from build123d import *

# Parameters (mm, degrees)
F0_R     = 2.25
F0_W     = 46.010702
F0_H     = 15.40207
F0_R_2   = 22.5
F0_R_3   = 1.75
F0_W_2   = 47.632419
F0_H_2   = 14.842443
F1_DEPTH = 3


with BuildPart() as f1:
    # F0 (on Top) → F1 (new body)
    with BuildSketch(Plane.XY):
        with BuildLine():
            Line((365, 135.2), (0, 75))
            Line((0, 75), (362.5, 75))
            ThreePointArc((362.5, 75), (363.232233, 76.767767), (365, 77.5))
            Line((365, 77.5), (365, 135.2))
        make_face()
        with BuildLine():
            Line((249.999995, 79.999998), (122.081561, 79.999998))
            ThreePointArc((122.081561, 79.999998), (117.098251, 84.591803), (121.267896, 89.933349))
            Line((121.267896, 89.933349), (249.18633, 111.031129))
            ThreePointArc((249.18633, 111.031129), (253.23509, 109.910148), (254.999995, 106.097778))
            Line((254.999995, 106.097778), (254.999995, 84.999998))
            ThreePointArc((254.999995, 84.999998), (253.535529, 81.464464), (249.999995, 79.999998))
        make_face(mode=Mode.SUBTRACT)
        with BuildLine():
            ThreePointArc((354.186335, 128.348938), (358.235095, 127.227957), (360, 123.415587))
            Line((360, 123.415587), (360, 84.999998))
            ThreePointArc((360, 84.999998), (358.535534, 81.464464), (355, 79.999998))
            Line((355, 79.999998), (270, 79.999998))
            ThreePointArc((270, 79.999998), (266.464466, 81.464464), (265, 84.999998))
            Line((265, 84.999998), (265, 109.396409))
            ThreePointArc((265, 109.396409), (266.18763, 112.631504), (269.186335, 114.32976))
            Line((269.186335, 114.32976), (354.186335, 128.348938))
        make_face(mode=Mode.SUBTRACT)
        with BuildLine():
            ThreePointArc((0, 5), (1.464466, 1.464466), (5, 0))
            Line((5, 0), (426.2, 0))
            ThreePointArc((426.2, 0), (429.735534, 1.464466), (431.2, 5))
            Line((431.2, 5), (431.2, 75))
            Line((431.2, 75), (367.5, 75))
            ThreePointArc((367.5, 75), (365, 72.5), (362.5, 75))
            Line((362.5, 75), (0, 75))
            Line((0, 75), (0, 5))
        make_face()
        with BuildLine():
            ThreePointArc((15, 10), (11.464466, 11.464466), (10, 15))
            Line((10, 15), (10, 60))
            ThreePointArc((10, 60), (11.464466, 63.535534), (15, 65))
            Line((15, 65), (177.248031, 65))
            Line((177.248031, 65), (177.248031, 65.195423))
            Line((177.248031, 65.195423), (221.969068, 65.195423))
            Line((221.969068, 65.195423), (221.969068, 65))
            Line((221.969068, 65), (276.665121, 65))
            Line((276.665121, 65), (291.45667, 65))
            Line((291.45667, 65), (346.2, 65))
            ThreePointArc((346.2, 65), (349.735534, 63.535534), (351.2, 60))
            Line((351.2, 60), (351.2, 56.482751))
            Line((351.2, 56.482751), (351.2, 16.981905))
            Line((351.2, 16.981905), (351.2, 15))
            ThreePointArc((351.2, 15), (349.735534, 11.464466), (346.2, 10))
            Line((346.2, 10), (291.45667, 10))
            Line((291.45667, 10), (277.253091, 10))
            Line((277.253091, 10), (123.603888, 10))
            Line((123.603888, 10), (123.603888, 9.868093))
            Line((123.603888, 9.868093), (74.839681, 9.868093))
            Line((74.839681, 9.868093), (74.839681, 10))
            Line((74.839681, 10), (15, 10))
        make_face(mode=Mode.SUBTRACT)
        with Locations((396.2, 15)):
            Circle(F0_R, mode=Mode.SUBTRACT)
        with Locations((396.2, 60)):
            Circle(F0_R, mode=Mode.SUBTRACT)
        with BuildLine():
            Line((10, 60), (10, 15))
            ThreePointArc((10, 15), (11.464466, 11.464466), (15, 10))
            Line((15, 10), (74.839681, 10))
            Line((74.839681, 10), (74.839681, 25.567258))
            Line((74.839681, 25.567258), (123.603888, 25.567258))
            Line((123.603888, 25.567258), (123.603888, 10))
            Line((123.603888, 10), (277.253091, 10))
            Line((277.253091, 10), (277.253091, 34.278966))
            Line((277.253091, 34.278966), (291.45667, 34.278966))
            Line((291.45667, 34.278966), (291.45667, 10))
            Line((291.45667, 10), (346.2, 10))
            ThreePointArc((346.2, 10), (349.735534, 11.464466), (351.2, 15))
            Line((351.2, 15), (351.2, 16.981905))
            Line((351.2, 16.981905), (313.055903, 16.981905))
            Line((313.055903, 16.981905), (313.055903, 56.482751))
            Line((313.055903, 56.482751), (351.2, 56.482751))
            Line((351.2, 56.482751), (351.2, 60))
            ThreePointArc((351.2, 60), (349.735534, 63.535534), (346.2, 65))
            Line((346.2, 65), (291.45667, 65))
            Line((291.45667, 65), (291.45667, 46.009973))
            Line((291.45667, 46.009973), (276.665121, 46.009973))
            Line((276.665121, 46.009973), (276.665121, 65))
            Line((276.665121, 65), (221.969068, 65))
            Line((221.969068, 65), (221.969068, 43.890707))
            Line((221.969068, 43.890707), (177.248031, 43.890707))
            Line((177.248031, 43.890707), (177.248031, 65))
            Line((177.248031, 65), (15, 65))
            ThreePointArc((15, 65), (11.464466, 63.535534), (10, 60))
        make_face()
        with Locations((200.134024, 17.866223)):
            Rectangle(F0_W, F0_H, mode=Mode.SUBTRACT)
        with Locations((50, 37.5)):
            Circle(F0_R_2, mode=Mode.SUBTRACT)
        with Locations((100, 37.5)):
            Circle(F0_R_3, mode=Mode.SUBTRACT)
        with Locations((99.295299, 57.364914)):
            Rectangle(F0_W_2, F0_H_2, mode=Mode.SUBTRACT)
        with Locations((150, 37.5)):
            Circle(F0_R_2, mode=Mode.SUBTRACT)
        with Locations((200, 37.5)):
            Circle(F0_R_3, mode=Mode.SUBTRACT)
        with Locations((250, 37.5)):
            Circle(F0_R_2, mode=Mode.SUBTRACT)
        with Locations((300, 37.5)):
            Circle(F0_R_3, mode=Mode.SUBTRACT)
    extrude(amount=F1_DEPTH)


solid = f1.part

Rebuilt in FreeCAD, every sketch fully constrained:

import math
import FreeCAD as App
import Part
import Sketcher

V = App.Vector

doc = App.newDocument("Part")
body = doc.addObject("PartDesign::Body", "Body")

# Sketch on XY plane
sketch1 = body.newObject("Sketcher::SketchObject", "Sketch")
sketch1.AttachmentSupport = (doc.getObject("XY_Plane"), [""])
sketch1.MapMode = "FlatFace"
sketch1.addGeometry([
    Part.LineSegment(V(365, 135.2, 0), V(0, 75, 0)),  # 0
    Part.LineSegment(V(0, 75, 0), V(0, 5, 0)),  # 1
    Part.ArcOfCircle(Part.Circle(V(5, 5, 0), V(0, 0, 1), 5), math.radians(179.999996), math.radians(270.000004)),  # 2
    Part.LineSegment(V(5, 0, 0), V(426.2, 0, 0)),  # 3
    Part.ArcOfCircle(Part.Circle(V(426.2, 5, 0), V(0, 0, 1), 5), math.radians(-90.000004), math.radians(0.000004)),  # 4
    Part.LineSegment(V(431.2, 5, 0), V(431.2, 75, 0)),  # 5
    Part.LineSegment(V(431.2, 75, 0), V(367.5, 75, 0)),  # 6
    Part.ArcOfCircle(Part.Circle(V(365, 75, 0), V(0, 0, 1), 2.5), math.radians(180), math.radians(360)),  # 7
    Part.ArcOfCircle(Part.Circle(V(365, 75, 0), V(0, 0, 1), 2.5), math.radians(89.999996), math.radians(180.000004)),  # 8
    Part.LineSegment(V(365, 77.5, 0), V(365, 135.2, 0)),  # 9
    Part.LineSegment(V(74.839681, 9.868093, 0), V(74.839681, 25.567258, 0)),  # 10
    Part.LineSegment(V(74.839681, 25.567258, 0), V(123.603888, 25.567258, 0)),  # 11
    Part.LineSegment(V(123.603888, 25.567258, 0), V(123.603888, 9.868093, 0)),  # 12
    Part.LineSegment(V(123.603888, 9.868093, 0), V(74.839681, 9.868093, 0)),  # 13
    Part.Circle(V(50, 37.5, 0), V(0, 0, 1), 22.5),  # 14
    Part.Circle(V(100, 37.5, 0), V(0, 0, 1), 1.75),  # 15
    Part.LineSegment(V(223.139375, 10.165188, 0), V(177.128673, 10.165188, 0)),  # 16
    Part.LineSegment(V(177.128673, 10.165188, 0), V(177.128673, 25.567258, 0)),  # 17
    Part.LineSegment(V(177.128673, 25.567258, 0), V(223.139375, 25.567258, 0)),  # 18
    Part.LineSegment(V(223.139375, 25.567258, 0), V(223.139375, 10.165188, 0)),  # 19
    Part.Circle(V(150, 37.5, 0), V(0, 0, 1), 22.5),  # 20
    Part.Circle(V(200, 37.5, 0), V(0, 0, 1), 1.75),  # 21
    Part.LineSegment(V(123.111508, 49.943692, 0), V(75.47909, 49.943692, 0)),  # 22
    Part.LineSegment(V(75.47909, 49.943692, 0), V(75.47909, 64.786136, 0)),  # 23
    Part.LineSegment(V(75.47909, 64.786136, 0), V(123.111508, 64.786136, 0)),  # 24
    Part.LineSegment(V(123.111508, 64.786136, 0), V(123.111508, 49.943692, 0)),  # 25
    Part.LineSegment(V(177.248031, 65.195423, 0), V(221.969068, 65.195423, 0)),  # 26
    Part.LineSegment(V(221.969068, 65.195423, 0), V(221.969068, 43.890707, 0)),  # 27
    Part.LineSegment(V(221.969068, 43.890707, 0), V(177.248031, 43.890707, 0)),  # 28
    Part.LineSegment(V(177.248031, 43.890707, 0), V(177.248031, 65.195423, 0)),  # 29
    Part.LineSegment(V(291.45667, 10, 0), V(277.253091, 10, 0)),  # 30
    Part.LineSegment(V(277.253091, 10, 0), V(277.253091, 34.278966, 0)),  # 31
    Part.LineSegment(V(277.253091, 34.278966, 0), V(291.45667, 34.278966, 0)),  # 32
    Part.LineSegment(V(291.45667, 34.278966, 0), V(291.45667, 10, 0)),  # 33
    Part.Circle(V(250, 37.5, 0), V(0, 0, 1), 22.5),  # 34
    Part.Circle(V(300, 37.5, 0), V(0, 0, 1), 1.75),  # 35
    Part.Circle(V(396.2, 15, 0), V(0, 0, 1), 2.25),  # 36
    Part.LineSegment(V(351.2, 56.482751, 0), V(351.2, 16.981905, 0)),  # 37
    Part.LineSegment(V(351.2, 16.981905, 0), V(313.055903, 16.981905, 0)),  # 38
    Part.LineSegment(V(313.055903, 16.981905, 0), V(313.055903, 56.482751, 0)),  # 39
    Part.LineSegment(V(313.055903, 56.482751, 0), V(351.2, 56.482751, 0)),  # 40
    Part.LineSegment(V(276.665121, 65, 0), V(291.45667, 65, 0)),  # 41
    Part.LineSegment(V(291.45667, 65, 0), V(291.45667, 46.009973, 0)),  # 42
    Part.LineSegment(V(291.45667, 46.009973, 0), V(276.665121, 46.009973, 0)),  # 43
    Part.LineSegment(V(276.665121, 46.009973, 0), V(276.665121, 65, 0)),  # 44
    Part.Circle(V(396.2, 60, 0), V(0, 0, 1), 2.25),  # 45
    Part.ArcOfCircle(Part.Circle(V(249.999995, 84.999998, 0), V(0, 0, 1), 5), math.radians(-90.000004), math.radians(0.000004)),  # 46
    Part.LineSegment(V(249.999995, 79.999998, 0), V(122.081561, 79.999998, 0)),  # 47
    Part.ArcOfCircle(Part.Circle(V(122.081561, 84.999998, 0), V(0, 0, 1), 5), math.radians(99.365564), math.radians(270.000001)),  # 48
    Part.LineSegment(V(121.267896, 89.933349, 0), V(249.18633, 111.031129, 0)),  # 49
    Part.ArcOfCircle(Part.Circle(V(249.999995, 106.097779, 0), V(0, 0, 1), 5), math.radians(-0.000009), math.radians(99.365571)),  # 50
    Part.LineSegment(V(254.999995, 106.097778, 0), V(254.999995, 84.999998, 0)),  # 51
    Part.LineSegment(V(269.186335, 114.32976, 0), V(354.186335, 128.348938, 0)),  # 52
    Part.ArcOfCircle(Part.Circle(V(355, 123.415588, 0), V(0, 0, 1), 5), math.radians(-0.000009), math.radians(99.365571)),  # 53
    Part.LineSegment(V(360, 123.415587, 0), V(360, 84.999998, 0)),  # 54
    Part.ArcOfCircle(Part.Circle(V(355, 84.999998, 0), V(0, 0, 1), 5), math.radians(-90.000004), math.radians(0.000004)),  # 55
    Part.LineSegment(V(355, 79.999998, 0), V(270, 79.999998, 0)),  # 56
    Part.ArcOfCircle(Part.Circle(V(270, 84.999998, 0), V(0, 0, 1), 5), math.radians(179.999996), math.radians(270.000004)),  # 57
    Part.LineSegment(V(265, 84.999998, 0), V(265, 109.396409, 0)),  # 58
    Part.ArcOfCircle(Part.Circle(V(269.999999, 109.39641, 0), V(0, 0, 1), 4.999999), math.radians(99.365556), math.radians(180.000012)),  # 59
], False)
sketch1.addConstraint([
    Sketcher.Constraint("Coincident", 0, 2, 1, 1),
    Sketcher.Constraint("Tangent", 1, 2, 2, 1),
    Sketcher.Constraint("Tangent", 2, 2, 3, 1),
    Sketcher.Constraint("Tangent", 3, 2, 4, 1),
    Sketcher.Constraint("Tangent", 4, 2, 5, 1),
    Sketcher.Constraint("Coincident", 5, 2, 6, 1),
    Sketcher.Constraint("Coincident", 6, 2, 7, 2),
    Sketcher.Constraint("Tangent", 7, 1, 8, 2),
    Sketcher.Constraint("Coincident", 8, 1, 9, 1),
    Sketcher.Constraint("Coincident", 9, 2, 0, 1),
    Sketcher.Constraint("Coincident", 10, 2, 11, 1),
    Sketcher.Constraint("Coincident", 11, 2, 12, 1),
    Sketcher.Constraint("Coincident", 12, 2, 13, 1),
    Sketcher.Constraint("Coincident", 13, 2, 10, 1),
    Sketcher.Constraint("Coincident", 16, 2, 17, 1),
    Sketcher.Constraint("Coincident", 17, 2, 18, 1),
    Sketcher.Constraint("Coincident", 18, 2, 19, 1),
    Sketcher.Constraint("Coincident", 19, 2, 16, 1),
    Sketcher.Constraint("Coincident", 22, 2, 23, 1),
    Sketcher.Constraint("Coincident", 23, 2, 24, 1),
    Sketcher.Constraint("Coincident", 24, 2, 25, 1),
    Sketcher.Constraint("Coincident", 25, 2, 22, 1),
    Sketcher.Constraint("Coincident", 26, 2, 27, 1),
    Sketcher.Constraint("Coincident", 27, 2, 28, 1),
    Sketcher.Constraint("Coincident", 28, 2, 29, 1),
    Sketcher.Constraint("Coincident", 29, 2, 26, 1),
    Sketcher.Constraint("Coincident", 30, 2, 31, 1),
    Sketcher.Constraint("Coincident", 31, 2, 32, 1),
    Sketcher.Constraint("Coincident", 32, 2, 33, 1),
    Sketcher.Constraint("Coincident", 33, 2, 30, 1),
    Sketcher.Constraint("Coincident", 37, 2, 38, 1),
    Sketcher.Constraint("Coincident", 38, 2, 39, 1),
    Sketcher.Constraint("Coincident", 39, 2, 40, 1),
    Sketcher.Constraint("Coincident", 40, 2, 37, 1),
    Sketcher.Constraint("Coincident", 41, 2, 42, 1),
    Sketcher.Constraint("Coincident", 42, 2, 43, 1),
    Sketcher.Constraint("Coincident", 43, 2, 44, 1),
    Sketcher.Constraint("Coincident", 44, 2, 41, 1),
    Sketcher.Constraint("Tangent", 46, 1, 47, 1),
    Sketcher.Constraint("Tangent", 47, 2, 48, 2),
    Sketcher.Constraint("Tangent", 48, 1, 49, 1),
    Sketcher.Constraint("Tangent", 49, 2, 50, 2),
    Sketcher.Constraint("Tangent", 50, 1, 51, 1),
    Sketcher.Constraint("Tangent", 51, 2, 46, 2),
    Sketcher.Constraint("Tangent", 52, 2, 53, 2),
    Sketcher.Constraint("Tangent", 53, 1, 54, 1),
    Sketcher.Constraint("Tangent", 54, 2, 55, 2),
    Sketcher.Constraint("Tangent", 55, 1, 56, 1),
    Sketcher.Constraint("Tangent", 56, 2, 57, 2),
    Sketcher.Constraint("Tangent", 57, 1, 58, 1),
    Sketcher.Constraint("Tangent", 58, 2, 59, 2),
    Sketcher.Constraint("Tangent", 59, 1, 52, 1),
    Sketcher.Constraint("Vertical", 1),
    Sketcher.Constraint("Horizontal", 3),
    Sketcher.Constraint("Vertical", 5),
    Sketcher.Constraint("Horizontal", 6),
    Sketcher.Constraint("Vertical", 9),
    Sketcher.Constraint("Vertical", 10),
    Sketcher.Constraint("Horizontal", 11),
    Sketcher.Constraint("Vertical", 12),
    Sketcher.Constraint("Horizontal", 13),
    Sketcher.Constraint("Horizontal", 16),
    Sketcher.Constraint("Vertical", 17),
    Sketcher.Constraint("Horizontal", 18),
    Sketcher.Constraint("Vertical", 19),
    Sketcher.Constraint("Horizontal", 22),
    Sketcher.Constraint("Vertical", 23),
    Sketcher.Constraint("Horizontal", 24),
    Sketcher.Constraint("Vertical", 25),
    Sketcher.Constraint("Horizontal", 26),
    Sketcher.Constraint("Vertical", 27),
    Sketcher.Constraint("Horizontal", 28),
    Sketcher.Constraint("Vertical", 29),
    Sketcher.Constraint("Horizontal", 30),
    Sketcher.Constraint("Vertical", 31),
    Sketcher.Constraint("Horizontal", 32),
    Sketcher.Constraint("Vertical", 33),
    Sketcher.Constraint("Vertical", 37),
    Sketcher.Constraint("Horizontal", 38),
    Sketcher.Constraint("Vertical", 39),
    Sketcher.Constraint("Horizontal", 40),
    Sketcher.Constraint("Horizontal", 41),
    Sketcher.Constraint("Vertical", 42),
    Sketcher.Constraint("Horizontal", 43),
    Sketcher.Constraint("Vertical", 44),
    Sketcher.Constraint("Horizontal", 47),
    Sketcher.Constraint("Vertical", 51),
    Sketcher.Constraint("Vertical", 54),
    Sketcher.Constraint("Horizontal", 56),
    Sketcher.Constraint("Vertical", 58),
    Sketcher.Constraint("Equal", 2, 4),
    Sketcher.Constraint("Equal", 7, 8),
    Sketcher.Constraint("Equal", 14, 20),
    Sketcher.Constraint("Equal", 15, 21),
    Sketcher.Constraint("Equal", 20, 34),
    Sketcher.Constraint("Equal", 21, 35),
    Sketcher.Constraint("Equal", 36, 45),
    Sketcher.Constraint("Equal", 4, 46),
    Sketcher.Constraint("Equal", 46, 48),
    Sketcher.Constraint("Equal", 48, 50),
    Sketcher.Constraint("Equal", 50, 53),
    Sketcher.Constraint("Equal", 53, 55),
    Sketcher.Constraint("Equal", 55, 57),
    Sketcher.Constraint("Equal", 57, 59),
    Sketcher.Constraint("PointOnObject", 0, 2, -2),
    Sketcher.Constraint("PointOnObject", 2, 2, -1),
    Sketcher.Constraint("Parallel", 0, 49),
    Sketcher.Constraint("Parallel", 49, 52),
    Sketcher.Constraint("Horizontal", 14, 3, 15, 3),
    Sketcher.Constraint("Horizontal", 15, 3, 20, 3),
    Sketcher.Constraint("Horizontal", 20, 3, 21, 3),
    Sketcher.Constraint("Horizontal", 21, 3, 34, 3),
    Sketcher.Constraint("Horizontal", 34, 3, 35, 3),
    Sketcher.Constraint("Horizontal", 48, 3, 55, 3),
    Sketcher.Constraint("Horizontal", 8, 3, 0, 2),
    Sketcher.Constraint("Horizontal", 0, 2, 5, 2),
    Sketcher.Constraint("Horizontal", 6, 2, 7, 1),
    Sketcher.Constraint("Horizontal", 11, 2, 17, 2),
    Sketcher.Constraint("Vertical", 36, 3, 45, 3),
    Sketcher.Constraint("Vertical", 7, 3, 8, 1),
    Sketcher.Constraint("Vertical", 33, 2, 41, 2),
    Sketcher.Constraint("Diameter", 14, 45.0),
    Sketcher.Constraint("Radius", 2, 5.0),
    Sketcher.Constraint("Diameter", 15, 3.5),
    Sketcher.Constraint("Diameter", 36, 4.5),
    Sketcher.Constraint("Radius", 7, 2.5),
    Sketcher.Constraint("DistanceX", 56, 2, 56, 1, 85.0),
    Sketcher.Constraint("DistanceY", 1, 2, 1, 1, 70.0),
    Sketcher.Constraint("DistanceX", 3, 1, 3, 2, 421.2),
    Sketcher.Constraint("DistanceX", 6, 2, 6, 1, 63.7),
    Sketcher.Constraint("DistanceY", 9, 1, 9, 2, 57.7),
    Sketcher.Constraint("DistanceX", -1, 1, 14, 3, 50.0),
    Sketcher.Constraint("DistanceX", -1, 1, 15, 3, 100.0),
    Sketcher.Constraint("DistanceX", -1, 1, 20, 3, 150.0),
    Sketcher.Constraint("DistanceX", -1, 1, 21, 3, 200.0),
    Sketcher.Constraint("DistanceX", -1, 1, 34, 3, 250.0),
    Sketcher.Constraint("DistanceX", -1, 1, 35, 3, 300.0),
    Sketcher.Constraint("DistanceY", -1, 1, 36, 3, 15.0),
    Sketcher.Constraint("DistanceY", -1, 1, 45, 3, 60.0),
    Sketcher.Constraint("DistanceY", -1, 1, 48, 3, 84.999998),
    Sketcher.Constraint("DistanceX", -1, 1, 53, 3, 355.0),
    Sketcher.Constraint("DistanceY", -1, 1, 30, 2, 10.0),
    Sketcher.Constraint("DistanceY", -1, 1, 41, 2, 65.0),
    Sketcher.Constraint("DistanceY", -1, 1, 14, 3, 37.5),
    Sketcher.Constraint("DistanceX", -1, 1, 36, 3, 396.2),
    Sketcher.Constraint("DistanceX", -1, 1, 37, 2, 351.2),
    Sketcher.Constraint("DistanceX", 22, 2, 22, 1, 47.632419),
    Sketcher.Constraint("DistanceX", 30, 2, 30, 1, 14.203579),
    Sketcher.Constraint("DistanceX", 41, 1, 41, 2, 14.791549),
    Sketcher.Constraint("DistanceY", 17, 1, 17, 2, 15.40207),
    Sketcher.Constraint("DistanceY", 51, 2, 51, 1, 21.09778),
    Sketcher.Constraint("DistanceY", 54, 2, 54, 1, 38.415589),
    Sketcher.Constraint("DistanceX", 11, 1, 11, 2, 48.764207),
    Sketcher.Constraint("DistanceX", 16, 2, 16, 1, 46.010702),
    Sketcher.Constraint("DistanceX", 26, 1, 26, 2, 44.721037),
    Sketcher.Constraint("DistanceX", 38, 2, 38, 1, 38.144097),
    Sketcher.Constraint("DistanceY", 10, 1, 10, 2, 15.699165),
    Sketcher.Constraint("DistanceY", 23, 1, 23, 2, 14.842443),
    Sketcher.Constraint("DistanceY", 27, 2, 27, 1, 21.304716),
    Sketcher.Constraint("DistanceY", 31, 1, 31, 2, 24.278966),
    Sketcher.Constraint("DistanceY", 37, 2, 37, 1, 39.500846),
    Sketcher.Constraint("DistanceY", 42, 2, 42, 1, 18.990027),
    Sketcher.Constraint("DistanceX", -1, 1, 48, 3, 122.081561),
    Sketcher.Constraint("DistanceX", -1, 1, 10, 2, 74.839681),
    Sketcher.Constraint("DistanceX", -1, 1, 22, 2, 75.47909),
    Sketcher.Constraint("DistanceX", -1, 1, 26, 2, 221.969068),
    Sketcher.Constraint("DistanceX", -1, 1, 30, 2, 277.253091),
    Sketcher.Constraint("DistanceY", -1, 1, 39, 2, 56.482751),
    Sketcher.Constraint("DistanceY", -1, 1, 10, 2, 25.567258),
    Sketcher.Constraint("DistanceX", -1, 1, 16, 2, 177.128673),
    Sketcher.Constraint("DistanceY", -1, 1, 22, 2, 49.943692),
    Sketcher.Constraint("DistanceY", -1, 1, 26, 2, 65.195423),
])
pad1 = body.newObject("PartDesign::Pad", "Pad")
pad1.Profile = sketch1
pad1.Length = 3

doc.recompute()
